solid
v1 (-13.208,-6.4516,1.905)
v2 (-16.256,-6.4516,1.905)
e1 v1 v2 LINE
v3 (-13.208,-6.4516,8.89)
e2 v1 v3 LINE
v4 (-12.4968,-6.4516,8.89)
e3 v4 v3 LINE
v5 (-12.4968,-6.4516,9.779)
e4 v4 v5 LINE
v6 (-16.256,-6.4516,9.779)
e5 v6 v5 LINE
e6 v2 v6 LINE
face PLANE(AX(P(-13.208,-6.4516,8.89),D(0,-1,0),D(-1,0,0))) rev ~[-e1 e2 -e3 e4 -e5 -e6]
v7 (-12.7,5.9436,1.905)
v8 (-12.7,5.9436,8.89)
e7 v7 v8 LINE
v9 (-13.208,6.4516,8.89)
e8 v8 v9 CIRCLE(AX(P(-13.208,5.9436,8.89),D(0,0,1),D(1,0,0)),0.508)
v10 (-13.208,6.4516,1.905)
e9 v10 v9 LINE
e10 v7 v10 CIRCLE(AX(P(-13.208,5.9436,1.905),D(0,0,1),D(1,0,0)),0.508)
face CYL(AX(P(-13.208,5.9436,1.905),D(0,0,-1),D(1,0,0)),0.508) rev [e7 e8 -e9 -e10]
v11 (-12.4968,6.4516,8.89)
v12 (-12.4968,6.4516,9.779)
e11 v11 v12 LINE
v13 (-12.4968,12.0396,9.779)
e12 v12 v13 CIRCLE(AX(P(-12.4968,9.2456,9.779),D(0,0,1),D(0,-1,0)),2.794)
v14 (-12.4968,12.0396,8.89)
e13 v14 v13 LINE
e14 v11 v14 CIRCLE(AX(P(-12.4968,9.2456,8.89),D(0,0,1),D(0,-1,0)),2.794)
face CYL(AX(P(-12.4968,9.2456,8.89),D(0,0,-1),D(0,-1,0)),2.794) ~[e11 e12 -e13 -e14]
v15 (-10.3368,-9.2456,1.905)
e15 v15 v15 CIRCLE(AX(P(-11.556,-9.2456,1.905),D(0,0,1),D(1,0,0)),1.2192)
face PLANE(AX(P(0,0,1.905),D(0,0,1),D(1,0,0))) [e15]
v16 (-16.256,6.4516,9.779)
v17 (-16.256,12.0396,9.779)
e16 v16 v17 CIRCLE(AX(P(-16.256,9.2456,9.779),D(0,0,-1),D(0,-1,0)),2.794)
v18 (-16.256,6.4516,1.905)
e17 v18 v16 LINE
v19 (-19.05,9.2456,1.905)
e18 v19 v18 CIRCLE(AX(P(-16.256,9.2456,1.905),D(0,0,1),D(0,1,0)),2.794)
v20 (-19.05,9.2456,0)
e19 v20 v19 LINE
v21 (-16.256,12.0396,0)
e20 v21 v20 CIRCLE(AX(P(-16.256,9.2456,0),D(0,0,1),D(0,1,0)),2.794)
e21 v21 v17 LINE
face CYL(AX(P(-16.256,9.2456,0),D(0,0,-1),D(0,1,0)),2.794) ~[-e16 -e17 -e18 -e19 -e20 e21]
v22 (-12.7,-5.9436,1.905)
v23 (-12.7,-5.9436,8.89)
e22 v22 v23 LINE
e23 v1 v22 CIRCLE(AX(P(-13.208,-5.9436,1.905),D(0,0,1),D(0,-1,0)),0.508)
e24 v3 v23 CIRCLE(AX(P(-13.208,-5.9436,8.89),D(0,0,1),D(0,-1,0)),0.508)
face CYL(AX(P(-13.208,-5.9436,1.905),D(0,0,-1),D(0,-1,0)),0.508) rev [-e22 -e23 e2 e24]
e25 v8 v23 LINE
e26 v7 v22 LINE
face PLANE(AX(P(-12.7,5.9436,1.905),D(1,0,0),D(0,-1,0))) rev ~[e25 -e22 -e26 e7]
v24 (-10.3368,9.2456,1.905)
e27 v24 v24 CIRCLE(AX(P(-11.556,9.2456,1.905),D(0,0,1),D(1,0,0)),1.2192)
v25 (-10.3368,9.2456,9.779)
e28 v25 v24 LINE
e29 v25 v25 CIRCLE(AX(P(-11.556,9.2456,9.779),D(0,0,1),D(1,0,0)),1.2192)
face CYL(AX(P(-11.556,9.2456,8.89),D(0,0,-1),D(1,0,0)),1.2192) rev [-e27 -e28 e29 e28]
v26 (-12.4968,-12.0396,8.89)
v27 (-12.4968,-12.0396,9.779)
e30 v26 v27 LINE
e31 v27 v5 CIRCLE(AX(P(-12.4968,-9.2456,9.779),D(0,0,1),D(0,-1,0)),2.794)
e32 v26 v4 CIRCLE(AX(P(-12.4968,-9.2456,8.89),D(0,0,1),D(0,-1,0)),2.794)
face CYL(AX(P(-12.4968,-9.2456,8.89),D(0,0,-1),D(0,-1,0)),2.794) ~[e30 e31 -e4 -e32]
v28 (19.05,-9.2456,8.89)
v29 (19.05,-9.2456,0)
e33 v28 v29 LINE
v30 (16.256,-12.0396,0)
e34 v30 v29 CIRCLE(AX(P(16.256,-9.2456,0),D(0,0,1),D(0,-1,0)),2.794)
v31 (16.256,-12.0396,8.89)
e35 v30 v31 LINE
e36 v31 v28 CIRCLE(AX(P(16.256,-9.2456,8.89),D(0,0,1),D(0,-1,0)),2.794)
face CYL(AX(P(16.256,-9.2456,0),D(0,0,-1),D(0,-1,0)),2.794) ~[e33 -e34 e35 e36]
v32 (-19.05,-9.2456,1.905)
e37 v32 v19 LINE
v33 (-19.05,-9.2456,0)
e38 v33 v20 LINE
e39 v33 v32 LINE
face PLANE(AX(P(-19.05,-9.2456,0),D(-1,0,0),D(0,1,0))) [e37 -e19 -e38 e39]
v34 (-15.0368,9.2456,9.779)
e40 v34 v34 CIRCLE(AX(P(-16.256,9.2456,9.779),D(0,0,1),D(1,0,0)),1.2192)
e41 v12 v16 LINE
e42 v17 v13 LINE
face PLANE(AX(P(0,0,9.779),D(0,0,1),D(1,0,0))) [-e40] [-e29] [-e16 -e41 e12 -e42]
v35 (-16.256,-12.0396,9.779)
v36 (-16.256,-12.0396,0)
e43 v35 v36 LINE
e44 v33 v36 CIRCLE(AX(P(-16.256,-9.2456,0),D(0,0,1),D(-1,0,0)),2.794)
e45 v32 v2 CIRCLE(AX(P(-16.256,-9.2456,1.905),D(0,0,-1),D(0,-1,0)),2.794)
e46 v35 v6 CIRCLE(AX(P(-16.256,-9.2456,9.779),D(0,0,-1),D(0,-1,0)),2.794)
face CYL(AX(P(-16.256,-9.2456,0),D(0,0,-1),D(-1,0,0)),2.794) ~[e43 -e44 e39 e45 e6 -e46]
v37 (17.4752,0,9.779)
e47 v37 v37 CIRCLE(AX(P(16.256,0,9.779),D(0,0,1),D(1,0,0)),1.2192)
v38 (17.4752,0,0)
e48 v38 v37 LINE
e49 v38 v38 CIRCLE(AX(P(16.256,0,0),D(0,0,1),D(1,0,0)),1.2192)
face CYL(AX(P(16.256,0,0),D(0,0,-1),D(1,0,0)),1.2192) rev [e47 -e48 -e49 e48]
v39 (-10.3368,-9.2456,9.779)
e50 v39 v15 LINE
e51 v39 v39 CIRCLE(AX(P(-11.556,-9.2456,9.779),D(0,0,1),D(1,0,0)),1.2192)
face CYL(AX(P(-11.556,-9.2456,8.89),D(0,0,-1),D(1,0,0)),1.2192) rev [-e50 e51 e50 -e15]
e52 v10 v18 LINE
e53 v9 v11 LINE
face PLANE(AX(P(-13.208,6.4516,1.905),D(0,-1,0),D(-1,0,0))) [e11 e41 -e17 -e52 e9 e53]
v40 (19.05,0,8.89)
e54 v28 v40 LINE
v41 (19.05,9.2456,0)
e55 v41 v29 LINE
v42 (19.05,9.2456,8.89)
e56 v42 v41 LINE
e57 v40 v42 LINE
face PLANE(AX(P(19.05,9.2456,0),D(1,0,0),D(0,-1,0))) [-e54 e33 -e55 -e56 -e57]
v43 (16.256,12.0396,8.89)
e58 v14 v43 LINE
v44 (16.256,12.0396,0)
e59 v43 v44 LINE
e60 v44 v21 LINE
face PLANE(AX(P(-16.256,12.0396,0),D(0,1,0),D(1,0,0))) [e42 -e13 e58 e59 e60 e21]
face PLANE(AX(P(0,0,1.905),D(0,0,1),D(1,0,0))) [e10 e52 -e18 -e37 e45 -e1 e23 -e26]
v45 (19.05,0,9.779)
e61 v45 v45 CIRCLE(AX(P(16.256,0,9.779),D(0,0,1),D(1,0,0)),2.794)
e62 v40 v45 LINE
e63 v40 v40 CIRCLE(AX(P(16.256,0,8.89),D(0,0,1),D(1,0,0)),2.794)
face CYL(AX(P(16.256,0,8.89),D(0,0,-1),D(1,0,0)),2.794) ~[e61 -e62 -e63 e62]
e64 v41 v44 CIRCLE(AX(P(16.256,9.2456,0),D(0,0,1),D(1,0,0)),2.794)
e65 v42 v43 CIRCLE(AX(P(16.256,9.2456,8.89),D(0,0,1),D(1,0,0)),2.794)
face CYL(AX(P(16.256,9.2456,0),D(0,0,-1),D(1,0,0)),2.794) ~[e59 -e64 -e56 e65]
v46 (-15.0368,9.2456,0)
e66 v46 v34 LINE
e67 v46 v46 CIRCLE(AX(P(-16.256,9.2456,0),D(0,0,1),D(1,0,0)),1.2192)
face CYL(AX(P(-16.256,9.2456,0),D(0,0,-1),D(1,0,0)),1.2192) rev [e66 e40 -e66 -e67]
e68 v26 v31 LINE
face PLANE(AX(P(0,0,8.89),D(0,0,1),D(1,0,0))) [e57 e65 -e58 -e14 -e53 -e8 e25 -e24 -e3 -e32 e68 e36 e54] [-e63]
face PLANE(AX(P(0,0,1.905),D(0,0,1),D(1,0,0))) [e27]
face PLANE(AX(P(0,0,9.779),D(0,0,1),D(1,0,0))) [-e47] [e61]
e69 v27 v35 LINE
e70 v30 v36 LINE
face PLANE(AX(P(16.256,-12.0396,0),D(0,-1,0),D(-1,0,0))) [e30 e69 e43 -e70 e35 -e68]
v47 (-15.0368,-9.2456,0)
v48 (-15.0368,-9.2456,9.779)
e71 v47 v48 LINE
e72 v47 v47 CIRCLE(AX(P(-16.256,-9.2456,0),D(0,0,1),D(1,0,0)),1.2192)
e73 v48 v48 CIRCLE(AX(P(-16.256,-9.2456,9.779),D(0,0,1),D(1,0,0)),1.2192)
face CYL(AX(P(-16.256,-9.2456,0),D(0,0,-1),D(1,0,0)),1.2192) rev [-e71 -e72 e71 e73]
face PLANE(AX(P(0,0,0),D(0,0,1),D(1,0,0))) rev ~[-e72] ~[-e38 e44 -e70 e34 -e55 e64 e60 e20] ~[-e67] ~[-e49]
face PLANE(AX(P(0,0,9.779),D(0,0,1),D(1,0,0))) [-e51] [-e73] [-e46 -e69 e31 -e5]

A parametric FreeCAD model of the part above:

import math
import FreeCAD as App
import Part
import Sketcher
Q = App.Units.Quantity

doc = App.newDocument("Part")
body = doc.addObject("PartDesign::Body", "Body")

sketch1 = doc.addObject("Sketcher::SketchObject", "Sketch")
body.addObject(sketch1)
sketch1.AttachmentSupport = (doc.XY_Plane, [""])
sketch1.MapMode = "FlatFace"
sketch1.addGeometry(Part.ArcOfCircle(Part.Circle(App.Vector(-16.3, 9.2, 0), App.Vector(0, 0, 1), 2.8), math.radians(90), math.radians(180)), False)
sketch1.addGeometry(Part.LineSegment(App.Vector(-19.1, 9.2, 0), App.Vector(-19.1, -9.2, 0)), False)
sketch1.addGeometry(Part.ArcOfCircle(Part.Circle(App.Vector(-16.3, -9.2, 0), App.Vector(0, 0, 1), 2.8), math.radians(180), math.radians(270)), False)
sketch1.addGeometry(Part.LineSegment(App.Vector(-16.3, -12, 0), App.Vector(16.3, -12, 0)), False)
sketch1.addGeometry(Part.ArcOfCircle(Part.Circle(App.Vector(16.3, -9.2, 0), App.Vector(0, 0, 1), 2.8), math.radians(-90), math.radians(0)), False)
sketch1.addGeometry(Part.LineSegment(App.Vector(19.1, -9.2, 0), App.Vector(19.1, 9.2, 0)), False)
sketch1.addGeometry(Part.ArcOfCircle(Part.Circle(App.Vector(16.3, 9.2, 0), App.Vector(0, 0, 1), 2.8), math.radians(0), math.radians(90)), False)
sketch1.addGeometry(Part.LineSegment(App.Vector(16.3, 12, 0), App.Vector(-16.3, 12, 0)), False)
sketch1.addGeometry(Part.Circle(App.Vector(-16.3, 9.2, 0), App.Vector(0, 0, 1), 1.2), False)
sketch1.addGeometry(Part.Circle(App.Vector(-16.3, -9.2, 0), App.Vector(0, 0, 1), 1.2), False)
sketch1.addGeometry(Part.Circle(App.Vector(16.3, 0, 0), App.Vector(0, 0, 1), 1.2), False)
sketch1.addConstraint(Sketcher.Constraint("Tangent", 0, 2, 1, 1))
sketch1.addConstraint(Sketcher.Constraint("Tangent", 1, 2, 2, 1))
sketch1.addConstraint(Sketcher.Constraint("Tangent", 2, 2, 3, 1))
sketch1.addConstraint(Sketcher.Constraint("Tangent", 3, 2, 4, 1))
sketch1.addConstraint(Sketcher.Constraint("Tangent", 4, 2, 5, 1))
sketch1.addConstraint(Sketcher.Constraint("Tangent", 5, 2, 6, 1))
sketch1.addConstraint(Sketcher.Constraint("Tangent", 6, 2, 7, 1))
sketch1.addConstraint(Sketcher.Constraint("Tangent", 7, 2, 0, 1))
sketch1.addConstraint(Sketcher.Constraint("Vertical", 1))
sketch1.addConstraint(Sketcher.Constraint("Horizontal", 3))
sketch1.addConstraint(Sketcher.Constraint("Vertical", 5))
sketch1.addConstraint(Sketcher.Constraint("Horizontal", 7))
sketch1.addConstraint(Sketcher.Constraint("Coincident", 8, 3, 0, 3))
sketch1.addConstraint(Sketcher.Constraint("Coincident", 9, 3, 2, 3))
sketch1.addConstraint(Sketcher.Constraint("Equal", 0, 2))
sketch1.addConstraint(Sketcher.Constraint("Equal", 2, 4))
sketch1.addConstraint(Sketcher.Constraint("Equal", 4, 6))
sketch1.addConstraint(Sketcher.Constraint("Equal", 8, 9))
sketch1.addConstraint(Sketcher.Constraint("Equal", 9, 10))
sketch1.addConstraint(Sketcher.Constraint("Symmetric", 0, 3, 4, 3, -1, 1))
sketch1.addConstraint(Sketcher.Constraint("PointOnObject", 10, 3, -1))
sketch1.addConstraint(Sketcher.Constraint("Vertical", 6, 3, 10, 3))
sketch1.addConstraint(Sketcher.Constraint("Diameter", 8, Q("0.096 in")))
sketch1.addConstraint(Sketcher.Constraint("DistanceX", 3, 1, 3, 2, Q("1.28 in")))
sketch1.addConstraint(Sketcher.Constraint("DistanceY", 1, 2, 1, 1, Q("0.728 in")))
sketch1.addConstraint(Sketcher.Constraint("Radius", 0, Q("0.11 in")))
pad1 = doc.addObject("PartDesign::Pad", "Pad")
body.addObject(pad1)
pad1.Profile = sketch1
pad1.Length = Q("0.075 in")

sketch2 = doc.addObject("Sketcher::SketchObject", "Sketch001")
body.addObject(sketch2)
sketch2.AttachmentSupport = (doc.XY_Plane, [""])
sketch2.MapMode = "FlatFace"
sketch2.AttachmentOffset = App.Placement(App.Vector(0, 0, 0.075 * 25.4), App.Rotation())
sketch2.addGeometry(Part.ArcOfCircle(Part.Circle(App.Vector(-16.3, 9.2, 0), App.Vector(0, 0, 1), 2.8), math.radians(90), math.radians(270)), False)
sketch2.addGeometry(Part.LineSegment(App.Vector(-16.3, 6.5, 0), App.Vector(-13.2, 6.5, 0)), False)
sketch2.addGeometry(Part.ArcOfCircle(Part.Circle(App.Vector(-13.2, 5.9, 0), App.Vector(0, 0, 1), 0.5), math.radians(0), math.radians(90)), False)
sketch2.addGeometry(Part.LineSegment(App.Vector(-12.7, 5.9, 0), App.Vector(-12.7, -5.9, 0)), False)
sketch2.addGeometry(Part.ArcOfCircle(Part.Circle(App.Vector(-13.2, -5.9, 0), App.Vector(0, 0, 1), 0.5), math.radians(-90), math.radians(0)), False)
sketch2.addGeometry(Part.LineSegment(App.Vector(-13.2, -6.5, 0), App.Vector(-16.3, -6.5, 0)), False)
sketch2.addGeometry(Part.ArcOfCircle(Part.Circle(App.Vector(-16.3, -9.2, 0), App.Vector(0, 0, 1), 2.8), math.radians(90), math.radians(270)), False)
sketch2.addGeometry(Part.LineSegment(App.Vector(-16.3, -12, 0), App.Vector(16.3, -12, 0)), False)
sketch2.addGeometry(Part.ArcOfCircle(Part.Circle(App.Vector(16.3, -9.2, 0), App.Vector(0, 0, 1), 2.8), math.radians(-90), math.radians(0)), False)
sketch2.addGeometry(Part.LineSegment(App.Vector(19.1, -9.2, 0), App.Vector(19.1, 9.2, 0)), False)
sketch2.addGeometry(Part.ArcOfCircle(Part.Circle(App.Vector(16.3, 9.2, 0), App.Vector(0, 0, 1), 2.8), math.radians(0), math.radians(90)), False)
sketch2.addGeometry(Part.LineSegment(App.Vector(16.3, 12, 0), App.Vector(-16.3, 12, 0)), False)
sketch2.addGeometry(Part.Circle(App.Vector(-16.3, 9.2, 0), App.Vector(0, 0, 1), 1.2), False)
sketch2.addGeometry(Part.Circle(App.Vector(-11.6, 9.2, 0), App.Vector(0, 0, 1), 1.2), False)
sketch2.addGeometry(Part.Circle(App.Vector(-16.3, -9.2, 0), App.Vector(0, 0, 1), 1.2), False)
sketch2.addGeometry(Part.Circle(App.Vector(-11.6, -9.2, 0), App.Vector(0, 0, 1), 1.2), False)
sketch2.addGeometry(Part.Circle(App.Vector(16.3, 0, 0), App.Vector(0, 0, 1), 1.2), False)
sketch2.addConstraint(Sketcher.Constraint("Tangent", 0, 2, 1, 1))
sketch2.addConstraint(Sketcher.Constraint("Tangent", 1, 2, 2, 2))
sketch2.addConstraint(Sketcher.Constraint("Tangent", 2, 1, 3, 1))
sketch2.addConstraint(Sketcher.Constraint("Tangent", 3, 2, 4, 2))
sketch2.addConstraint(Sketcher.Constraint("Tangent", 4, 1, 5, 1))
sketch2.addConstraint(Sketcher.Constraint("Tangent", 5, 2, 6, 1))
sketch2.addConstraint(Sketcher.Constraint("Tangent", 6, 2, 7, 1))
sketch2.addConstraint(Sketcher.Constraint("Tangent", 7, 2, 8, 1))
sketch2.addConstraint(Sketcher.Constraint("Tangent", 8, 2, 9, 1))
sketch2.addConstraint(Sketcher.Constraint("Tangent", 9, 2, 10, 1))
sketch2.addConstraint(Sketcher.Constraint("Tangent", 10, 2, 11, 1))
sketch2.addConstraint(Sketcher.Constraint("Tangent", 11, 2, 0, 1))
sketch2.addConstraint(Sketcher.Constraint("Horizontal", 1))
sketch2.addConstraint(Sketcher.Constraint("Vertical", 3))
sketch2.addConstraint(Sketcher.Constraint("Horizontal", 5))
sketch2.addConstraint(Sketcher.Constraint("Horizontal", 7))
sketch2.addConstraint(Sketcher.Constraint("Vertical", 9))
sketch2.addConstraint(Sketcher.Constraint("Horizontal", 11))
sketch2.addConstraint(Sketcher.Constraint("Coincident", 12, 3, 0, 3))
sketch2.addConstraint(Sketcher.Constraint("Coincident", 14, 3, 6, 3))
sketch2.addConstraint(Sketcher.Constraint("Equal", 2, 4))
sketch2.addConstraint(Sketcher.Constraint("Equal", 0, 6))
sketch2.addConstraint(Sketcher.Constraint("Equal", 6, 8))
sketch2.addConstraint(Sketcher.Constraint("Equal", 8, 10))
sketch2.addConstraint(Sketcher.Constraint("Equal", 12, 13))
sketch2.addConstraint(Sketcher.Constraint("Equal", 13, 14))
sketch2.addConstraint(Sketcher.Constraint("Equal", 14, 15))
sketch2.addConstraint(Sketcher.Constraint("Equal", 15, 16))
sketch2.addConstraint(Sketcher.Constraint("Symmetric", 0, 3, 8, 3, -1, 1))
sketch2.addConstraint(Sketcher.Constraint("Symmetric", 13, 3, 15, 3, -1))
sketch2.addConstraint(Sketcher.Constraint("PointOnObject", 16, 3, -1))
sketch2.addConstraint(Sketcher.Constraint("Horizontal", 12, 3, 13, 3))
sketch2.addConstraint(Sketcher.Constraint("Vertical", 0, 3, 6, 3))
sketch2.addConstraint(Sketcher.Constraint("Vertical", 10, 3, 16, 3))
sketch2.addConstraint(Sketcher.Constraint("Radius", 2, Q("0.02 in")))
sketch2.addConstraint(Sketcher.Constraint("Diameter", 12, Q("0.096 in")))
sketch2.addConstraint(Sketcher.Constraint("DistanceX", 7, 1, 7, 2, Q("1.28 in")))
sketch2.addConstraint(Sketcher.Constraint("DistanceY", 9, 1, 9, 2, Q("0.728 in")))
sketch2.addConstraint(Sketcher.Constraint("Radius", 0, Q("0.11 in")))
sketch2.addConstraint(Sketcher.Constraint("DistanceX", 1, 1, 1, 2, Q("0.12 in")))
sketch2.addConstraint(Sketcher.Constraint("DistanceX", 0, 3, 13, 3, Q("4.7 mm")))
pad2 = doc.addObject("PartDesign::Pad", "Pad001")
body.addObject(pad2)
pad2.Profile = sketch2
pad2.Length = Q("0.275 in")

sketch3 = doc.addObject("Sketcher::SketchObject", "Sketch002")
body.addObject(sketch3)
sketch3.AttachmentSupport = (doc.XY_Plane, [""])
sketch3.MapMode = "FlatFace"
sketch3.AttachmentOffset = App.Placement(App.Vector(0, 0, 0.35 * 25.4), App.Rotation())
sketch3.addGeometry(Part.LineSegment(App.Vector(-12.5, 12, 0), App.Vector(-16.3, 12, 0)), False)
sketch3.addGeometry(Part.ArcOfCircle(Part.Circle(App.Vector(-16.3, 9.2, 0), App.Vector(0, 0, 1), 2.8), math.radians(90), math.radians(270)), False)
sketch3.addGeometry(Part.LineSegment(App.Vector(-16.3, 6.5, 0), App.Vector(-12.5, 6.5, 0)), False)
sketch3.addGeometry(Part.ArcOfCircle(Part.Circle(App.Vector(-12.5, 9.2, 0), App.Vector(0, 0, 1), 2.8), math.radians(-90), math.radians(90)), False)
sketch3.addGeometry(Part.Circle(App.Vector(-16.3, 9.2, 0), App.Vector(0, 0, 1), 1.2), False)
sketch3.addGeometry(Part.Circle(App.Vector(-11.6, 9.2, 0), App.Vector(0, 0, 1), 1.2), False)
sketch3.addGeometry(Part.Circle(App.Vector(16.3, 0, 0), App.Vector(0, 0, 1), 2.8), False)
sketch3.addGeometry(Part.Circle(App.Vector(16.3, 0, 0), App.Vector(0, 0, 1), 1.2), False)
sketch3.addGeometry(Part.ArcOfCircle(Part.Circle(App.Vector(-16.3, -9.2, 0), App.Vector(0, 0, 1), 2.8), math.radians(90), math.radians(270)), False)
sketch3.addGeometry(Part.LineSegment(App.Vector(-16.3, -12, 0), App.Vector(-12.5, -12, 0)), False)
sketch3.addGeometry(Part.ArcOfCircle(Part.Circle(App.Vector(-12.5, -9.2, 0), App.Vector(0, 0, 1), 2.8), math.radians(-90), math.radians(90)), False)
sketch3.addGeometry(Part.LineSegment(App.Vector(-12.5, -6.5, 0), App.Vector(-16.3, -6.5, 0)), False)
sketch3.addGeometry(Part.Circle(App.Vector(-16.3, -9.2, 0), App.Vector(0, 0, 1), 1.2), False)
sketch3.addGeometry(Part.Circle(App.Vector(-11.6, -9.2, 0), App.Vector(0, 0, 1), 1.2), False)
sketch3.addConstraint(Sketcher.Constraint("Tangent", 0, 2, 1, 1))
sketch3.addConstraint(Sketcher.Constraint("Tangent", 1, 2, 2, 1))
sketch3.addConstraint(Sketcher.Constraint("Tangent", 2, 2, 3, 1))
sketch3.addConstraint(Sketcher.Constraint("Tangent", 3, 2, 0, 1))
sketch3.addConstraint(Sketcher.Constraint("Tangent", 8, 2, 9, 1))
sketch3.addConstraint(Sketcher.Constraint("Tangent", 9, 2, 10, 1))
sketch3.addConstraint(Sketcher.Constraint("Tangent", 10, 2, 11, 1))
sketch3.addConstraint(Sketcher.Constraint("Tangent", 11, 2, 8, 1))
sketch3.addConstraint(Sketcher.Constraint("Horizontal", 0))
sketch3.addConstraint(Sketcher.Constraint("Horizontal", 2))
sketch3.addConstraint(Sketcher.Constraint("Horizontal", 9))
sketch3.addConstraint(Sketcher.Constraint("Horizontal", 11))
sketch3.addConstraint(Sketcher.Constraint("Coincident", 4, 3, 1, 3))
sketch3.addConstraint(Sketcher.Constraint("Coincident", 7, 3, 6, 3))
sketch3.addConstraint(Sketcher.Constraint("Coincident", 12, 3, 8, 3))
sketch3.addConstraint(Sketcher.Constraint("Equal", 4, 5))
sketch3.addConstraint(Sketcher.Constraint("Equal", 3, 6))
sketch3.addConstraint(Sketcher.Constraint("Equal", 5, 7))
sketch3.addConstraint(Sketcher.Constraint("Equal", 6, 8))
sketch3.addConstraint(Sketcher.Constraint("Equal", 7, 12))
sketch3.addConstraint(Sketcher.Constraint("Equal", 12, 13))
sketch3.addConstraint(Sketcher.Constraint("Symmetric", 1, 3, 8, 3, -1))
sketch3.addConstraint(Sketcher.Constraint("Symmetric", 5, 3, 13, 3, -1))
sketch3.addConstraint(Sketcher.Constraint("PointOnObject", 6, 3, -1))
sketch3.addConstraint(Sketcher.Constraint("Horizontal", 4, 3, 5, 3))
sketch3.addConstraint(Sketcher.Constraint("Vertical", 3, 3, 10, 3))
sketch3.addConstraint(Sketcher.Constraint("Diameter", 4, Q("0.096 in")))
sketch3.addConstraint(Sketcher.Constraint("Diameter", 6, Q("0.22 in")))
sketch3.addConstraint(Sketcher.Constraint("DistanceX", 0, 2, 0, 1, Q("0.148 in")))
sketch3.addConstraint(Sketcher.Constraint("DistanceX", 1, 3, 6, 3, Q("1.28 in")))
sketch3.addConstraint(Sketcher.Constraint("DistanceY", 8, 3, 1, 3, Q("0.728 in")))
sketch3.addConstraint(Sketcher.Constraint("DistanceX", 1, 3, -1, 1, Q("0.64 in")))
sketch3.addConstraint(Sketcher.Constraint("DistanceX", 1, 3, 5, 3, Q("4.7 mm")))
pad3 = doc.addObject("PartDesign::Pad", "Pad002")
body.addObject(pad3)
pad3.Profile = sketch3
pad3.Length = Q("0.035 in")

doc.recompute()
